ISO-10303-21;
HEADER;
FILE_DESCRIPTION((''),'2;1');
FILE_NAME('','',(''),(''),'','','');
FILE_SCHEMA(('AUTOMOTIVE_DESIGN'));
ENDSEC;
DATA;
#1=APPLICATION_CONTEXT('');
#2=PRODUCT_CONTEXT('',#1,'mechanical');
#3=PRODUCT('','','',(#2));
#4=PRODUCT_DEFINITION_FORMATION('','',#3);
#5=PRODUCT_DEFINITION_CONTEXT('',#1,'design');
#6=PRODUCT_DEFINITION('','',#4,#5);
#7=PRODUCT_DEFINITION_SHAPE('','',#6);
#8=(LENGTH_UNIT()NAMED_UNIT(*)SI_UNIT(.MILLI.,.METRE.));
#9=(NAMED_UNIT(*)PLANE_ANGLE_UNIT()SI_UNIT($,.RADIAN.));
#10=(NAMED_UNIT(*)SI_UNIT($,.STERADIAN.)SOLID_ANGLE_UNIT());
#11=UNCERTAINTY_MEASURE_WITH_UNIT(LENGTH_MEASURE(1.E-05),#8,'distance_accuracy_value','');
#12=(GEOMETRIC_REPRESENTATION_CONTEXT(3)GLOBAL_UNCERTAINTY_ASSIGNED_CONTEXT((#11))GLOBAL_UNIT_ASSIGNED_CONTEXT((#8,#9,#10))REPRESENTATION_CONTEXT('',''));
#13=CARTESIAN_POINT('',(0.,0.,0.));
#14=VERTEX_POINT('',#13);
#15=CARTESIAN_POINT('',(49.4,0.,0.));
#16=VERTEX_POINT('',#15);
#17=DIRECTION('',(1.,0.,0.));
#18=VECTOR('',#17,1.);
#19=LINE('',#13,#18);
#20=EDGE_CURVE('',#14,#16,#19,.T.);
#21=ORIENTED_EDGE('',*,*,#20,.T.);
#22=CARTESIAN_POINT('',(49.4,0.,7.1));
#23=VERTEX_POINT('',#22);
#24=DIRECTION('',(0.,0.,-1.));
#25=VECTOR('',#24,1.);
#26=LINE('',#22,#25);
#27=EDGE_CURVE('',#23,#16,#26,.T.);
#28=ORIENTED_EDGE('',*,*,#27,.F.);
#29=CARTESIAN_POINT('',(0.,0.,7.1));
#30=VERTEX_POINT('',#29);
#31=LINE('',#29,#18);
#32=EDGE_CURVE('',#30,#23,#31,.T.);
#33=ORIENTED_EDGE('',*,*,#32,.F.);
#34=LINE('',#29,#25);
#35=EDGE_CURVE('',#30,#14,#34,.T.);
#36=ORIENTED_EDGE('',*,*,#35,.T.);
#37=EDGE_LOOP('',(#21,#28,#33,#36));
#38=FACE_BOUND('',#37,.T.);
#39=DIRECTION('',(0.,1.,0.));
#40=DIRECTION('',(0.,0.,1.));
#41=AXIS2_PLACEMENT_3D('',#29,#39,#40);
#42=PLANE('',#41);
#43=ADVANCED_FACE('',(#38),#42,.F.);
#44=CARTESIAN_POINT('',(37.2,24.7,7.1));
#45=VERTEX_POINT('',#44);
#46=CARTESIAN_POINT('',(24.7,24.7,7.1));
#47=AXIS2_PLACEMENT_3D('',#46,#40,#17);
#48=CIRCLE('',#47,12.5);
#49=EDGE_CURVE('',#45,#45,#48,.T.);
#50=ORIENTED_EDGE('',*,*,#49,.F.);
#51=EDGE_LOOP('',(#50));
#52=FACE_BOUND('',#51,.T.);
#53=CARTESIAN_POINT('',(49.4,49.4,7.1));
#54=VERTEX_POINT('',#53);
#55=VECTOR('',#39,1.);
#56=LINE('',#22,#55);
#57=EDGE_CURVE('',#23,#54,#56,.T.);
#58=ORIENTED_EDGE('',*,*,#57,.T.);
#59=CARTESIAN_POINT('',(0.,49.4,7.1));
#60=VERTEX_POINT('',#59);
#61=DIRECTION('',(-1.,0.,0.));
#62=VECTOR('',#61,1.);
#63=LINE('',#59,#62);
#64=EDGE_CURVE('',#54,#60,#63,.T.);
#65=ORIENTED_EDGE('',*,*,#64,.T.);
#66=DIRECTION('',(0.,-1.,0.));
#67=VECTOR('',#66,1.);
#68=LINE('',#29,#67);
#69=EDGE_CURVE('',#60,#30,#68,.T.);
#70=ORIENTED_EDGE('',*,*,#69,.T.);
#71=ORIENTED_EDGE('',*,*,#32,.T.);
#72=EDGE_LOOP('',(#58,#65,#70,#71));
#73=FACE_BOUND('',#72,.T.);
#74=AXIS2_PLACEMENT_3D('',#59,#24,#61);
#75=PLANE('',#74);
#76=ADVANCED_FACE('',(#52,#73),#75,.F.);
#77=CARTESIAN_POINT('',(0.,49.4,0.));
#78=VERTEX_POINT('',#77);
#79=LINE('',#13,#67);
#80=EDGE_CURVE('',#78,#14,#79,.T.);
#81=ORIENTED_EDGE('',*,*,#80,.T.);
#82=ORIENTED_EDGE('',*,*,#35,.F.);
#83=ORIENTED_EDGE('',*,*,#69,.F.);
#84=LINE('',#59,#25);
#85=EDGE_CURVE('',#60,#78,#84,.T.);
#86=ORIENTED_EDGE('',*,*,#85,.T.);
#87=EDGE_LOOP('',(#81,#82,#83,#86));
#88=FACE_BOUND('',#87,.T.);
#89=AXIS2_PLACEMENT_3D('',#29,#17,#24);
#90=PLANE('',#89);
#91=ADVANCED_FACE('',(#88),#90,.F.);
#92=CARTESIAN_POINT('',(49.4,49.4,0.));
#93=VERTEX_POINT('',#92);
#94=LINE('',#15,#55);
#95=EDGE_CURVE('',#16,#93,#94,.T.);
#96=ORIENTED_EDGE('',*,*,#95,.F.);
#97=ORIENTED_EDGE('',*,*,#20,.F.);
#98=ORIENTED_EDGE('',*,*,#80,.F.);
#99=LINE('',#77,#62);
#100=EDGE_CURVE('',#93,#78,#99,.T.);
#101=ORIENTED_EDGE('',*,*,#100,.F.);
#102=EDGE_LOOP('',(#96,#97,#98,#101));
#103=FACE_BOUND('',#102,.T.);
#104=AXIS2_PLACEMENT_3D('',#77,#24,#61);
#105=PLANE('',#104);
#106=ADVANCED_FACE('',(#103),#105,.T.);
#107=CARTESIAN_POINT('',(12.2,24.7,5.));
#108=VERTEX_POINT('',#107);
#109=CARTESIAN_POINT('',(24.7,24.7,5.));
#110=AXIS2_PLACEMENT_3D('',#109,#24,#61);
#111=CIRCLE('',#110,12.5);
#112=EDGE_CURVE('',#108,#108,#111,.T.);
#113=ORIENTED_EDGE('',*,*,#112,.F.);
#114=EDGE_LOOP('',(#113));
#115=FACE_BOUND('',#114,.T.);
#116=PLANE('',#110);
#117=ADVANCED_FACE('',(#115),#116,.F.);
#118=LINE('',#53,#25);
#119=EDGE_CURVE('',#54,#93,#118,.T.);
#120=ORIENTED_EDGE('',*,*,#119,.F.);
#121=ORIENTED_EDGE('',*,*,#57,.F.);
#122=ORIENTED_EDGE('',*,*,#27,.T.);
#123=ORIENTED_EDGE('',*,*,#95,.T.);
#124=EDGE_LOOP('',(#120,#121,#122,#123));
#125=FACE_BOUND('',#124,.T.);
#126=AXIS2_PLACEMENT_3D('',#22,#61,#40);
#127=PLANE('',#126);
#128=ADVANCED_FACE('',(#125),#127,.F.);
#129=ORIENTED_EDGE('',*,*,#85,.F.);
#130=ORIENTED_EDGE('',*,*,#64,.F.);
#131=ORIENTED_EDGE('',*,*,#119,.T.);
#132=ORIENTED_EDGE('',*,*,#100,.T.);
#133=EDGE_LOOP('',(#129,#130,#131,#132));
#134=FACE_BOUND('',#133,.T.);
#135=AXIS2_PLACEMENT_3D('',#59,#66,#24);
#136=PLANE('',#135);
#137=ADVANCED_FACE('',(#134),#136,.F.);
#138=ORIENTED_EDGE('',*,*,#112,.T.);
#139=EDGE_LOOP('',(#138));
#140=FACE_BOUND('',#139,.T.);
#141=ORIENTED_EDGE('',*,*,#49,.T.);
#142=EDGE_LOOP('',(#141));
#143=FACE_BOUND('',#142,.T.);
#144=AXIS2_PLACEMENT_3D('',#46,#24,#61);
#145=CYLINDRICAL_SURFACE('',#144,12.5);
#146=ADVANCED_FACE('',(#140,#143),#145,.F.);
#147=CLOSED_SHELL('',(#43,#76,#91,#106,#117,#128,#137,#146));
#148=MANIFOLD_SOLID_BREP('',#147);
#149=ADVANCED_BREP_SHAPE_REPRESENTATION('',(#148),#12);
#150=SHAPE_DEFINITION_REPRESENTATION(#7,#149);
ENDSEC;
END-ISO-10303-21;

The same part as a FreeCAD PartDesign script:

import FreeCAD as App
import Part
import Sketcher

V = App.Vector
Q = App.Units.Quantity

doc = App.newDocument("Part")
body = doc.addObject("PartDesign::Body", "Body")

sketch1 = doc.addObject("Sketcher::SketchObject", "Sketch")
body.addObject(sketch1)
sketch1.AttachmentSupport = (doc.XY_Plane, [""])
sketch1.MapMode = "FlatFace"
sketch1.addGeometry(Part.LineSegment(V(0, 49.4, 0), V(0, 0, 0)), False)
sketch1.addGeometry(Part.LineSegment(V(0, 0, 0), V(49.4, 0, 0)), False)
sketch1.addGeometry(Part.LineSegment(V(49.4, 0, 0), V(49.4, 49.4, 0)), False)
sketch1.addGeometry(Part.LineSegment(V(49.4, 49.4, 0), V(0, 49.4, 0)), False)
sketch1.addGeometry(Part.Circle(V(24.7, 24.7, 0), V(0, 0, 1), 12.5), False)
sketch1.addConstraint(Sketcher.Constraint("Coincident", 0, 2, 1, 1))
sketch1.addConstraint(Sketcher.Constraint("Coincident", 1, 2, 2, 1))
sketch1.addConstraint(Sketcher.Constraint("Coincident", 2, 2, 3, 1))
sketch1.addConstraint(Sketcher.Constraint("Coincident", 3, 2, 0, 1))
sketch1.addConstraint(Sketcher.Constraint("Vertical", 0))
sketch1.addConstraint(Sketcher.Constraint("Horizontal", 1))
sketch1.addConstraint(Sketcher.Constraint("Vertical", 2))
sketch1.addConstraint(Sketcher.Constraint("Horizontal", 3))
sketch1.addConstraint(Sketcher.Constraint("Coincident", 0, 2, -1, 1))
sketch1.addConstraint(Sketcher.Constraint("Equal", 3, 0))
sketch1.addConstraint(Sketcher.Constraint("Diameter", 4, Q("25 mm")))
sketch1.addConstraint(Sketcher.Constraint("DistanceX", 1, 1, 1, 2, Q("49.4 mm")))
sketch1.addConstraint(Sketcher.Constraint("DistanceX", -1, 1, 4, 3, Q("24.7 mm")))
sketch1.addConstraint(Sketcher.Constraint("DistanceY", -1, 1, 4, 3, Q("24.7 mm")))
pad1 = doc.addObject("PartDesign::Pad", "Pad")
body.addObject(pad1)
pad1.Profile = sketch1
pad1.Length = 7.1

sketch2 = doc.addObject("Sketcher::SketchObject", "Sketch001")
body.addObject(sketch2)
sketch2.AttachmentSupport = (doc.XY_Plane, [""])
sketch2.MapMode = "FlatFace"
sketch2.addGeometry(Part.Circle(V(24.7, 24.7, 0), V(0, 0, 1), 12.5), False)
sketch2.addConstraint(Sketcher.Constraint("Diameter", 0, Q("25 mm")))
sketch2.addConstraint(Sketcher.Constraint("DistanceX", -1, 1, 0, 3, Q("24.7 mm")))
sketch2.addConstraint(Sketcher.Constraint("DistanceY", -1, 1, 0, 3, Q("24.7 mm")))
pad2 = doc.addObject("PartDesign::Pad", "Pad001")
body.addObject(pad2)
pad2.Profile = sketch2
pad2.Length = 5

doc.recompute()
